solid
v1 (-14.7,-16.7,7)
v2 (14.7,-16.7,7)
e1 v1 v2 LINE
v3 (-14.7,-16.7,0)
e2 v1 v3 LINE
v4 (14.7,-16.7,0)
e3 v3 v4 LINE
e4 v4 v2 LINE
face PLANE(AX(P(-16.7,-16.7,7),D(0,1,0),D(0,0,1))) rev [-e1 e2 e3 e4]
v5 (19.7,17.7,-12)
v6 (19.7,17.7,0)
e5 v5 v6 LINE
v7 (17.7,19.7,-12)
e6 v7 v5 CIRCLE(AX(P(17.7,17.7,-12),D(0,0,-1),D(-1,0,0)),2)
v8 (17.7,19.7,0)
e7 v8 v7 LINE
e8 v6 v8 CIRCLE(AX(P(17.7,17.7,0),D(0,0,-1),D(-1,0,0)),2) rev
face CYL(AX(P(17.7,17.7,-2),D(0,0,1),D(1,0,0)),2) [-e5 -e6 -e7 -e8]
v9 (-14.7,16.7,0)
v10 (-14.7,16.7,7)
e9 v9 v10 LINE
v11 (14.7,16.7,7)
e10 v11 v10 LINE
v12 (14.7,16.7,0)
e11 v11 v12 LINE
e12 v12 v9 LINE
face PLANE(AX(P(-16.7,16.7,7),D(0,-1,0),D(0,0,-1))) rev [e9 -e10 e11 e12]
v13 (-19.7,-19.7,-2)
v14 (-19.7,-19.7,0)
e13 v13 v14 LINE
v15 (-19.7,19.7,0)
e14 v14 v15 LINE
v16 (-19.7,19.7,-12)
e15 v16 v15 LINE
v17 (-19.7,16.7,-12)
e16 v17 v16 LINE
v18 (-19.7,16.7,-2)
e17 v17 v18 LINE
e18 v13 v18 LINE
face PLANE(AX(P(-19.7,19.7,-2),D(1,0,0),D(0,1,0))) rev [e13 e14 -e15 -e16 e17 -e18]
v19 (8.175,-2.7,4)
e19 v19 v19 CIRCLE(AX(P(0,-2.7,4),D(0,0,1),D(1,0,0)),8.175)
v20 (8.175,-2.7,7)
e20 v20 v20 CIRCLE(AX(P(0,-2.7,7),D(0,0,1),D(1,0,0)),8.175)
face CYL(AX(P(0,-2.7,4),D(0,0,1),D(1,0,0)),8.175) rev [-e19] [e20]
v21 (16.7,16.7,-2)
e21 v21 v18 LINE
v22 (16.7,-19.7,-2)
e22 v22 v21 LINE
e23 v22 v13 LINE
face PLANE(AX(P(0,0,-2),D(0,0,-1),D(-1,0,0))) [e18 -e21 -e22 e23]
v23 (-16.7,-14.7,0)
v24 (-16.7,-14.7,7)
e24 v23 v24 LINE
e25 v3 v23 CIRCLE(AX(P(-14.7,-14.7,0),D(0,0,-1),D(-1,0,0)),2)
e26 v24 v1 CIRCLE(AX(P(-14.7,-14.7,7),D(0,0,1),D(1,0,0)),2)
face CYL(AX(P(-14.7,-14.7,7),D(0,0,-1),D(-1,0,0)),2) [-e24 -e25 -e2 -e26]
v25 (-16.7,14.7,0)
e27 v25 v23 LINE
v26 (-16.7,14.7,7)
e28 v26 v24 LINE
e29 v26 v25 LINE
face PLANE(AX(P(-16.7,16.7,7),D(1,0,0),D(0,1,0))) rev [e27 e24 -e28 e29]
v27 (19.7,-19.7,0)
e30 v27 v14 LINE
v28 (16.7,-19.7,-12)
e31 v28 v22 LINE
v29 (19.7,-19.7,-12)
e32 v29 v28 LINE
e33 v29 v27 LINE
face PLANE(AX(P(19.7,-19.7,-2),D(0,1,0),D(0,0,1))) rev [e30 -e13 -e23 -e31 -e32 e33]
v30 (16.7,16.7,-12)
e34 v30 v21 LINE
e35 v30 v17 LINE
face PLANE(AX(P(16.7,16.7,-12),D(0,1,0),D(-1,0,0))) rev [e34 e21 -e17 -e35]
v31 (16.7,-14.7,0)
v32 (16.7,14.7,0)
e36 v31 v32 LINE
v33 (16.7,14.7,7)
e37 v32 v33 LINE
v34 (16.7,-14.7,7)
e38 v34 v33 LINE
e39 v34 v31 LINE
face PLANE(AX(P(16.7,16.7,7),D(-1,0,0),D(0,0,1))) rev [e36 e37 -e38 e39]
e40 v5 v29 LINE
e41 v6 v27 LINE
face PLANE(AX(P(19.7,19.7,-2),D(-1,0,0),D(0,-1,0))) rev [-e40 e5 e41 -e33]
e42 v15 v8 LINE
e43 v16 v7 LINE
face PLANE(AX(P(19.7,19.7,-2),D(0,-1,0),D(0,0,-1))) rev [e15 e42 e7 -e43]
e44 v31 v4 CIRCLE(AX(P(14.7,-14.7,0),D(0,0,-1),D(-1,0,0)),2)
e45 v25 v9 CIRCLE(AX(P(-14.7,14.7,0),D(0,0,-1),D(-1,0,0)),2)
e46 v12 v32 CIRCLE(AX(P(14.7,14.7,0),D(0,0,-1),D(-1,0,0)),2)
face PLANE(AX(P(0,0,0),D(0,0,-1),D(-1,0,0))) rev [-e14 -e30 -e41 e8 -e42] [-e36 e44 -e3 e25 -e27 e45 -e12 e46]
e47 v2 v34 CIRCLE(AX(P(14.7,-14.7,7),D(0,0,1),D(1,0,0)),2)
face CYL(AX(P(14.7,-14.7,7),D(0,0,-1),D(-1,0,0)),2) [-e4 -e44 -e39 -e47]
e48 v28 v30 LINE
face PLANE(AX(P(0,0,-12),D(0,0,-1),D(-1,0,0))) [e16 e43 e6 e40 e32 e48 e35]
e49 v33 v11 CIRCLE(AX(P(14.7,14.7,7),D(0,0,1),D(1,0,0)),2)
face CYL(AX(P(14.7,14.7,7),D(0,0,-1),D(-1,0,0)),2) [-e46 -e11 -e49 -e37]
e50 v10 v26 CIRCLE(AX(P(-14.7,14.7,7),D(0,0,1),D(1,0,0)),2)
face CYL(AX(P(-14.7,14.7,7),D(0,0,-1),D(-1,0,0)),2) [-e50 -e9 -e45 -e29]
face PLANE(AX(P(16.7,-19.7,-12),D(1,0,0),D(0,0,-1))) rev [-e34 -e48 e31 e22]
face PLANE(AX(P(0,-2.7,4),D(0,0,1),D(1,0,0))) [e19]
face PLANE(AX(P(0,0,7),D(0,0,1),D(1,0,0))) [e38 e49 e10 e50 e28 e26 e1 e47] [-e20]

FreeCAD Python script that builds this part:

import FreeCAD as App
import Part
import Sketcher
Q = App.Units.Quantity


def edges_at(feature, points):
    """Names of the edges that pass closest to the given points."""
    edges = feature.Shape.Edges
    near = lambda p: min(range(len(edges)), key=lambda i: edges[i].distToShape(Part.Vertex(*p))[0])
    return sorted({f"Edge{near(p) + 1}" for p in points})

doc = App.newDocument("Part")
params = doc.addObject("Spreadsheet::Sheet", "Params")
for row, (alias, value) in enumerate([
    ("sketch1_width", "33.4 mm"),
    ("pad1_length", "7 mm"),
    ("sketch2_diameter", "16.35 mm"),
    ("pocket1_length", "3 mm"),
    ("sketch3_width", "39.4 mm"),
    ("pad2_length", "2 mm"),
    ("sketch4_width", "3 mm"),
    ("sketch4_width2", "39.4 mm"),
    ("pad3_length", "10 mm"),
    ("fillet_radius", "2 mm"),
], start=1):
    params.set(f"A{row}", alias)
    params.set(f"B{row}", "=" + value)
    params.setAlias(f"B{row}", alias)

body = doc.addObject("PartDesign::Body", "Body")

sketch1 = body.newObject("Sketcher::SketchObject", "Sketch")
sketch1.AttachmentSupport = (doc.getObject("XY_Plane"), [""])
sketch1.MapMode = "FlatFace"
sketch1.addGeometry(Part.LineSegment(App.Vector(-17, 17, 0), App.Vector(-17, -17, 0)), False)
sketch1.addGeometry(Part.LineSegment(App.Vector(-17, -17, 0), App.Vector(17, -17, 0)), False)
sketch1.addGeometry(Part.LineSegment(App.Vector(17, -17, 0), App.Vector(17, 17, 0)), False)
sketch1.addGeometry(Part.LineSegment(App.Vector(17, 17, 0), App.Vector(-17, 17, 0)), False)
sketch1.addConstraint(Sketcher.Constraint("Coincident", 0, 2, 1, 1))
sketch1.addConstraint(Sketcher.Constraint("Coincident", 1, 2, 2, 1))
sketch1.addConstraint(Sketcher.Constraint("Coincident", 2, 2, 3, 1))
sketch1.addConstraint(Sketcher.Constraint("Coincident", 3, 2, 0, 1))
sketch1.addConstraint(Sketcher.Constraint("Vertical", 0))
sketch1.addConstraint(Sketcher.Constraint("Horizontal", 1))
sketch1.addConstraint(Sketcher.Constraint("Vertical", 2))
sketch1.addConstraint(Sketcher.Constraint("Horizontal", 3))
sketch1.addConstraint(Sketcher.Constraint("Symmetric", 0, 2, 2, 2, -1, 1))
sketch1.addConstraint(Sketcher.Constraint("Equal", 3, 0))
sketch1.addConstraint(Sketcher.Constraint("DistanceX", 1, 1, 1, 2, Q("33.4 mm")))
sketch1.setExpression("Constraints[10]", "Params.sketch1_width")
pad1 = body.newObject("PartDesign::Pad", "Pad")
pad1.Profile = sketch1
pad1.setExpression("Length", "Params.pad1_length")

sketch2 = body.newObject("Sketcher::SketchObject", "Sketch001")
sketch2.AttachmentSupport = (doc.getObject("XY_Plane"), [""])
sketch2.MapMode = "FlatFace"
sketch2.AttachmentOffset = App.Placement(App.Vector(0, 0, 7), App.Rotation())
sketch2.addGeometry(Part.Circle(App.Vector(0, -3, 0), App.Vector(0, 0, 1), 8), False)
sketch2.addConstraint(Sketcher.Constraint("PointOnObject", 0, 3, -2))
sketch2.addConstraint(Sketcher.Constraint("Diameter", 0, Q("16.35 mm")))
sketch2.addConstraint(Sketcher.Constraint("DistanceY", 0, 3, -1, 1, Q("2.7 mm")))
sketch2.setExpression("Constraints[1]", "Params.sketch2_diameter")
pocket1 = body.newObject("PartDesign::Pocket", "Pocket")
pocket1.Profile = sketch2
pocket1.setExpression("Length", "Params.pocket1_length")

sketch3 = body.newObject("Sketcher::SketchObject", "Sketch002")
sketch3.AttachmentSupport = (doc.getObject("XY_Plane"), [""])
sketch3.MapMode = "FlatFace"
sketch3.addGeometry(Part.LineSegment(App.Vector(20, 20, 0), App.Vector(20, -20, 0)), False)
sketch3.addGeometry(Part.LineSegment(App.Vector(20, -20, 0), App.Vector(-20, -20, 0)), False)
sketch3.addGeometry(Part.LineSegment(App.Vector(-20, -20, 0), App.Vector(-20, 20, 0)), False)
sketch3.addGeometry(Part.LineSegment(App.Vector(-20, 20, 0), App.Vector(20, 20, 0)), False)
sketch3.addConstraint(Sketcher.Constraint("Coincident", 0, 2, 1, 1))
sketch3.addConstraint(Sketcher.Constraint("Coincident", 1, 2, 2, 1))
sketch3.addConstraint(Sketcher.Constraint("Coincident", 2, 2, 3, 1))
sketch3.addConstraint(Sketcher.Constraint("Coincident", 3, 2, 0, 1))
sketch3.addConstraint(Sketcher.Constraint("Vertical", 0))
sketch3.addConstraint(Sketcher.Constraint("Horizontal", 1))
sketch3.addConstraint(Sketcher.Constraint("Vertical", 2))
sketch3.addConstraint(Sketcher.Constraint("Horizontal", 3))
sketch3.addConstraint(Sketcher.Constraint("Symmetric", 0, 2, 2, 2, -1, 1))
sketch3.addConstraint(Sketcher.Constraint("Equal", 3, 0))
sketch3.addConstraint(Sketcher.Constraint("DistanceX", 1, 2, 1, 1, Q("39.4 mm")))
sketch3.setExpression("Constraints[10]", "Params.sketch3_width")
pad2 = body.newObject("PartDesign::Pad", "Pad001")
pad2.Profile = sketch3
pad2.setExpression("Length", "Params.pad2_length")
pad2.Reversed = True

sketch4 = body.newObject("Sketcher::SketchObject", "Sketch003")
sketch4.AttachmentSupport = (doc.getObject("XY_Plane"), [""])
sketch4.MapMode = "FlatFace"
sketch4.AttachmentOffset = App.Placement(App.Vector(0, 0, -2), App.Rotation())
sketch4.addGeometry(Part.LineSegment(App.Vector(-19.7, 19.7, 0), App.Vector(19.7, 19.7, 0)), False)
sketch4.addGeometry(Part.LineSegment(App.Vector(19.7, 19.7, 0), App.Vector(19.7, -19.7, 0)), False)
sketch4.addGeometry(Part.LineSegment(App.Vector(19.7, -19.7, 0), App.Vector(16.7, -19.7, 0)), False)
sketch4.addGeometry(Part.LineSegment(App.Vector(16.7, -19.7, 0), App.Vector(16.7, 16.7, 0)), False)
sketch4.addGeometry(Part.LineSegment(App.Vector(16.7, 16.7, 0), App.Vector(-19.7, 16.7, 0)), False)
sketch4.addGeometry(Part.LineSegment(App.Vector(-19.7, 16.7, 0), App.Vector(-19.7, 19.7, 0)), False)
sketch4.addConstraint(Sketcher.Constraint("Coincident", 0, 2, 1, 1))
sketch4.addConstraint(Sketcher.Constraint("Coincident", 1, 2, 2, 1))
sketch4.addConstraint(Sketcher.Constraint("Coincident", 2, 2, 3, 1))
sketch4.addConstraint(Sketcher.Constraint("Coincident", 3, 2, 4, 1))
sketch4.addConstraint(Sketcher.Constraint("Coincident", 4, 2, 5, 1))
sketch4.addConstraint(Sketcher.Constraint("Coincident", 5, 2, 0, 1))
sketch4.addConstraint(Sketcher.Constraint("Horizontal", 0))
sketch4.addConstraint(Sketcher.Constraint("Vertical", 1))
sketch4.addConstraint(Sketcher.Constraint("Horizontal", 2))
sketch4.addConstraint(Sketcher.Constraint("Vertical", 3))
sketch4.addConstraint(Sketcher.Constraint("Horizontal", 4))
sketch4.addConstraint(Sketcher.Constraint("Vertical", 5))
sketch4.addConstraint(Sketcher.Constraint("Symmetric", 1, 2, 5, 2, -1, 1))
sketch4.addConstraint(Sketcher.Constraint("Equal", 0, 1))
sketch4.addConstraint(Sketcher.Constraint("Equal", 4, 3))
sketch4.addConstraint(Sketcher.Constraint("DistanceX", 2, 2, 2, 1, Q("3 mm")))
sketch4.addConstraint(Sketcher.Constraint("DistanceX", 0, 1, 0, 2, Q("39.4 mm")))
sketch4.setExpression("Constraints[15]", "Params.sketch4_width")
sketch4.setExpression("Constraints[16]", "Params.sketch4_width2")
pad3 = body.newObject("PartDesign::Pad", "Pad002")
pad3.Profile = sketch4
pad3.setExpression("Length", "Params.pad3_length")
pad3.Reversed = True
doc.recompute()

fillet = body.newObject("PartDesign::Fillet", "Fillet")
fillet.Base = (pad3, edges_at(pad3, [
    (19.7, 19.7, -6),
    (-16.7, 16.7, 3.5),
    (16.7, 16.7, 3.5),
    (16.7, -16.7, 3.5),
    (-16.7, -16.7, 3.5),
]))
fillet.setExpression("Radius", "Params.fillet_radius")

doc.recompute()
